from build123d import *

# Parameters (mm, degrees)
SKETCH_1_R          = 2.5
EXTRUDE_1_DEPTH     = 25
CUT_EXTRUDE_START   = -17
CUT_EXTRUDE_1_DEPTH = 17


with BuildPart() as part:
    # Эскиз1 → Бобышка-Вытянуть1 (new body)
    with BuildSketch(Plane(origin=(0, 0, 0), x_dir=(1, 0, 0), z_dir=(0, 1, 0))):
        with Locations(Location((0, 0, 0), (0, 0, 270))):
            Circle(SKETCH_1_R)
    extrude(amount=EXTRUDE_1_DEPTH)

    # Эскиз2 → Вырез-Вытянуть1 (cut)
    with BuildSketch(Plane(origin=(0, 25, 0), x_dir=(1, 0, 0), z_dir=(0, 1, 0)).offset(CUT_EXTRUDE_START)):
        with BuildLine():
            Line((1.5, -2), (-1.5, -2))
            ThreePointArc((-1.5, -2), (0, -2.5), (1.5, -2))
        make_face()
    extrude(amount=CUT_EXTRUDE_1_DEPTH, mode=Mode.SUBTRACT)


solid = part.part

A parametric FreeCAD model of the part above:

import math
import FreeCAD as App
import Part
import Sketcher
Q = App.Units.Quantity

doc = App.newDocument("Part")
body = doc.addObject("PartDesign::Body", "Body")

sketch1 = doc.addObject("Sketcher::SketchObject", "Sketch")
body.addObject(sketch1)
sketch1.AttachmentSupport = (doc.XZ_Plane, [""])
sketch1.MapMode = "FlatFace"
sketch1.addGeometry(Part.Circle(App.Vector(0, 0, 0), App.Vector(0, 0, 1), 2.5), False)
sketch1.addConstraint([
    Sketcher.Constraint("Coincident", 0, 3, -1, 1),
    Sketcher.Constraint("Diameter", 0, Q("5 mm")),
])
pad1 = doc.addObject("PartDesign::Pad", "Pad")
body.addObject(pad1)
pad1.Profile = sketch1
pad1.Length = 25
pad1.Reversed = True

sketch2 = doc.addObject("Sketcher::SketchObject", "Sketch001")
body.addObject(sketch2)
sketch2.AttachmentSupport = (doc.XZ_Plane, [""])
sketch2.MapMode = "FlatFace"
sketch2.AttachmentOffset = App.Placement(App.Vector(0, 0, -8), App.Rotation())
sketch2.addGeometry([
    Part.LineSegment(App.Vector(1.5, 2, 0), App.Vector(-1.5, 2, 0)),
    Part.ArcOfCircle(Part.Circle(App.Vector(0, 0, 0), App.Vector(0, 0, 1), 2.5), math.radians(53.130102), math.radians(126.869898)),
], False)
sketch2.addConstraint([
    Sketcher.Constraint("Coincident", 0, 1, 1, 1),
    Sketcher.Constraint("Coincident", 1, 2, 0, 2),
    Sketcher.Constraint("Horizontal", 0),
    Sketcher.Constraint("Coincident", 1, 3, -1, 1),
    Sketcher.Constraint("Radius", 1, Q("2.5 mm")),
    Sketcher.Constraint("DistanceX", 0, 2, 0, 1, Q("3 mm")),
])
pocket1 = doc.addObject("PartDesign::Pocket", "Pocket")
body.addObject(pocket1)
pocket1.Profile = sketch2
pocket1.Length = 17

doc.recompute()
